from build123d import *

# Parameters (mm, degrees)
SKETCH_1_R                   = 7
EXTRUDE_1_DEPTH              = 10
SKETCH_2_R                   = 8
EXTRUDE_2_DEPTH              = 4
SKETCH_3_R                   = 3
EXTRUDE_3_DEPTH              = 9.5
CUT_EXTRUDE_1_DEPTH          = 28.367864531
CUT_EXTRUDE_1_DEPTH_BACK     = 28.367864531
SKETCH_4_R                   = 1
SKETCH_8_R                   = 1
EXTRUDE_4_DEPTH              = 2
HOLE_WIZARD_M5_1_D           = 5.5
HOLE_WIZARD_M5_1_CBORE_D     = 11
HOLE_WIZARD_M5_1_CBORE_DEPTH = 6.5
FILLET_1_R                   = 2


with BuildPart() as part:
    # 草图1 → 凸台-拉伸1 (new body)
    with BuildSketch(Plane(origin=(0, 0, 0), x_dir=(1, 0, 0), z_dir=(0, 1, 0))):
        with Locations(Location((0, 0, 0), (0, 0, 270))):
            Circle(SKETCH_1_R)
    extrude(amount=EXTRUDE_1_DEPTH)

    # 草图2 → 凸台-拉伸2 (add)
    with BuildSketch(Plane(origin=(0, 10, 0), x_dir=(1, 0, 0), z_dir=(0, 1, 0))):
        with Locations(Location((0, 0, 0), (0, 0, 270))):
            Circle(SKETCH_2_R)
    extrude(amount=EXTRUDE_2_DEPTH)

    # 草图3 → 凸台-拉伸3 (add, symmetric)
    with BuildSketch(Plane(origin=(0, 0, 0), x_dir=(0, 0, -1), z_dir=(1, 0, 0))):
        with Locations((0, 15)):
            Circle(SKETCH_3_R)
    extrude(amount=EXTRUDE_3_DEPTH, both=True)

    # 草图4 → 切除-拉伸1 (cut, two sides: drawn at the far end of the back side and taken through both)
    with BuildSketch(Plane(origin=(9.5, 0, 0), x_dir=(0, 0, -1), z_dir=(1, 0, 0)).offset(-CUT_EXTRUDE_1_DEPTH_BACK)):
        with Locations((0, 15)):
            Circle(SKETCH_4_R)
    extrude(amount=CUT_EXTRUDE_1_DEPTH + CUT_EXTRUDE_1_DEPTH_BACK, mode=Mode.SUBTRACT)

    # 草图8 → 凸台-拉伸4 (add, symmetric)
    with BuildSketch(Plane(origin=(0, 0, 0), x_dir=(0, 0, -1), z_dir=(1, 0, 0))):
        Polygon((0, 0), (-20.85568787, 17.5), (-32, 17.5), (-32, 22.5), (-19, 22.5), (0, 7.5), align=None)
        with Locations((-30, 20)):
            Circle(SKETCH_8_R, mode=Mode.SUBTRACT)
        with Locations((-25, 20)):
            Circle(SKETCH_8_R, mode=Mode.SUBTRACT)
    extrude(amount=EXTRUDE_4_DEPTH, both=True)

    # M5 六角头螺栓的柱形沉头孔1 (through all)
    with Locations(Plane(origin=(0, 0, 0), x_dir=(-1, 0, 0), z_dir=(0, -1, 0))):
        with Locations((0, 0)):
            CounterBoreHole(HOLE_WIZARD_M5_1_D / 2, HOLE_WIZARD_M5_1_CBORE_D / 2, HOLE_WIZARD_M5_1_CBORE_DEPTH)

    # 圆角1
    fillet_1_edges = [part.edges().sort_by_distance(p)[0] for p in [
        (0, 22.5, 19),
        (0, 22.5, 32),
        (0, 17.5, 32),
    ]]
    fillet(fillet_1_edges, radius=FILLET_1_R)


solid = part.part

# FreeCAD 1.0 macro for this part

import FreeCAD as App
import Part
import Sketcher
Q = App.Units.Quantity


def edges_at(feature, points):
    """Names of the edges that pass closest to the given points."""
    edges = feature.Shape.Edges
    near = lambda p: min(range(len(edges)), key=lambda i: edges[i].distToShape(Part.Vertex(*p))[0])
    return sorted({f"Edge{near(p) + 1}" for p in points})


def add_polygon(sketch, points):
    """Adds a closed chain of lines whose ends are joined by coincident constraints."""
    first, n = sketch.GeometryCount, len(points)
    for a, b in zip(points, points[1:] + points[:1]):
        sketch.addGeometry(Part.LineSegment(App.Vector(*a, 0), App.Vector(*b, 0)), False)
    for i in range(n):
        sketch.addConstraint(Sketcher.Constraint("Coincident", first + i, 2, first + (i + 1) % n, 1))

doc = App.newDocument("Part")
body = doc.addObject("PartDesign::Body", "Body")

sketch1 = doc.addObject("Sketcher::SketchObject", "Sketch")
body.addObject(sketch1)
sketch1.AttachmentSupport = (doc.XZ_Plane, [""])
sketch1.MapMode = "FlatFace"
sketch1.addGeometry(Part.Circle(App.Vector(0, 0, 0), App.Vector(0, 0, 1), 7), False)
sketch1.addConstraint(Sketcher.Constraint("Coincident", 0, 3, -1, 1))
sketch1.addConstraint(Sketcher.Constraint("Diameter", 0, Q("14 mm")))
pad1 = doc.addObject("PartDesign::Pad", "Pad")
body.addObject(pad1)
pad1.Profile = sketch1
pad1.Length = 10
pad1.Reversed = True

sketch2 = doc.addObject("Sketcher::SketchObject", "Sketch001")
body.addObject(sketch2)
sketch2.AttachmentSupport = (doc.XZ_Plane, [""])
sketch2.MapMode = "FlatFace"
sketch2.AttachmentOffset = App.Placement(App.Vector(0, 0, -10), App.Rotation())
sketch2.addGeometry(Part.Circle(App.Vector(0, 0, 0), App.Vector(0, 0, 1), 8), False)
sketch2.addConstraint(Sketcher.Constraint("Coincident", 0, 3, -1, 1))
sketch2.addConstraint(Sketcher.Constraint("Diameter", 0, Q("16 mm")))
pad2 = doc.addObject("PartDesign::Pad", "Pad001")
body.addObject(pad2)
pad2.Profile = sketch2
pad2.Length = 4
pad2.Reversed = True

sketch3 = doc.addObject("Sketcher::SketchObject", "Sketch002")
body.addObject(sketch3)
sketch3.AttachmentSupport = (doc.YZ_Plane, [""])
sketch3.MapMode = "FlatFace"
sketch3.addGeometry(Part.Circle(App.Vector(15, 0, 0), App.Vector(0, 0, 1), 3), False)
sketch3.addConstraint(Sketcher.Constraint("PointOnObject", 0, 3, -1))
sketch3.addConstraint(Sketcher.Constraint("Diameter", 0, Q("6 mm")))
sketch3.addConstraint(Sketcher.Constraint("DistanceX", -1, 1, 0, 3, Q("15 mm")))
pad3 = doc.addObject("PartDesign::Pad", "Pad002")
body.addObject(pad3)
pad3.Profile = sketch3
pad3.Length = 19
pad3.Midplane = True

sketch4 = doc.addObject("Sketcher::SketchObject", "Sketch003")
body.addObject(sketch4)
sketch4.AttachmentSupport = (doc.YZ_Plane, [""])
sketch4.MapMode = "FlatFace"
sketch4.AttachmentOffset = App.Placement(App.Vector(0, 0, 9.5), App.Rotation())
sketch4.addGeometry(Part.Circle(App.Vector(15, 0, 0), App.Vector(0, 0, 1), 1), False)
sketch4.addConstraint(Sketcher.Constraint("PointOnObject", 0, 3, -1))
sketch4.addConstraint(Sketcher.Constraint("Diameter", 0, Q("2 mm")))
sketch4.addConstraint(Sketcher.Constraint("DistanceX", -1, 1, 0, 3, Q("15 mm")))
pocket1 = doc.addObject("PartDesign::Pocket", "Pocket")
body.addObject(pocket1)
pocket1.Profile = sketch4
pocket1.Type = "ThroughAll"
pocket1.Midplane = True

sketch5 = doc.addObject("Sketcher::SketchObject", "Sketch004")
body.addObject(sketch5)
sketch5.AttachmentSupport = (doc.YZ_Plane, [""])
sketch5.MapMode = "FlatFace"
add_polygon(sketch5, [(17.5, 20.855688), (0, 0), (7.5, 0), (22.5, 19), (22.5, 32), (17.5, 32)])
sketch5.addGeometry(Part.Circle(App.Vector(20, 25, 0), App.Vector(0, 0, 1), 1), False)
sketch5.addGeometry(Part.Circle(App.Vector(20, 30, 0), App.Vector(0, 0, 1), 1), False)
sketch5.addConstraint(Sketcher.Constraint("Horizontal", 1))
sketch5.addConstraint(Sketcher.Constraint("Vertical", 3))
sketch5.addConstraint(Sketcher.Constraint("Horizontal", 4))
sketch5.addConstraint(Sketcher.Constraint("Vertical", 5))
sketch5.addConstraint(Sketcher.Constraint("Coincident", 0, 2, -1, 1))
sketch5.addConstraint(Sketcher.Constraint("Equal", 6, 7))
sketch5.addConstraint(Sketcher.Constraint("Vertical", 6, 3, 7, 3))
sketch5.addConstraint(Sketcher.Constraint("Diameter", 6, Q("2 mm")))
sketch5.addConstraint(Sketcher.Constraint("DistanceX", 4, 2, 4, 1, Q("5 mm")))
sketch5.addConstraint(Sketcher.Constraint("DistanceY", 3, 1, 3, 2, Q("13 mm")))
sketch5.addConstraint(Sketcher.Constraint("Angle", 0, Q("-130 deg")))
sketch5.addConstraint(Sketcher.Constraint("DistanceX", 1, 1, 1, 2, Q("7.5 mm")))
sketch5.addConstraint(Sketcher.Constraint("DistanceX", -1, 1, 6, 3, Q("20 mm")))
sketch5.addConstraint(Sketcher.Constraint("DistanceY", -1, 1, 6, 3, Q("25 mm")))
sketch5.addConstraint(Sketcher.Constraint("DistanceY", -1, 1, 7, 3, Q("30 mm")))
sketch5.addConstraint(Sketcher.Constraint("DistanceY", -1, 1, 2, 2, Q("19 mm")))
sketch5.addConstraint(Sketcher.Constraint("DistanceX", 1, 2, 2, 2, Q("15 mm")))
pad4 = doc.addObject("PartDesign::Pad", "Pad003")
body.addObject(pad4)
pad4.Profile = sketch5
pad4.Length = 4
pad4.Midplane = True

sketch6 = doc.addObject("Sketcher::SketchObject", "Sketch005")
body.addObject(sketch6)
sketch6.AttachmentSupport = (doc.XZ_Plane, [""])
sketch6.MapMode = "FlatFace"
sketch6.addGeometry(Part.Circle(App.Vector(0, 0, 0), App.Vector(0, 0, 1), 2.75), False)
sketch6.addConstraint(Sketcher.Constraint("Coincident", 0, 3, -1, 1))
sketch6.addConstraint(Sketcher.Constraint("Diameter", 0, Q("5.5 mm")))
doc.recompute()
hole = doc.addObject("PartDesign::Hole", "Hole")
body.addObject(hole)
hole.Profile = sketch6
hole.ThreadType = "None"
hole.Diameter = 5.5
hole.DepthType = "ThroughAll"
hole.HoleCutType = "Counterbore"
hole.HoleCutDiameter = 11
hole.HoleCutDepth = 6.5
doc.recompute()

fillet = doc.addObject("PartDesign::Fillet", "Fillet")
body.addObject(fillet)
fillet.Base = (hole, edges_at(hole, [(0, 22.5, 19), (0, 22.5, 32), (0, 17.5, 32)]))
fillet.Radius = 2

doc.recompute()
